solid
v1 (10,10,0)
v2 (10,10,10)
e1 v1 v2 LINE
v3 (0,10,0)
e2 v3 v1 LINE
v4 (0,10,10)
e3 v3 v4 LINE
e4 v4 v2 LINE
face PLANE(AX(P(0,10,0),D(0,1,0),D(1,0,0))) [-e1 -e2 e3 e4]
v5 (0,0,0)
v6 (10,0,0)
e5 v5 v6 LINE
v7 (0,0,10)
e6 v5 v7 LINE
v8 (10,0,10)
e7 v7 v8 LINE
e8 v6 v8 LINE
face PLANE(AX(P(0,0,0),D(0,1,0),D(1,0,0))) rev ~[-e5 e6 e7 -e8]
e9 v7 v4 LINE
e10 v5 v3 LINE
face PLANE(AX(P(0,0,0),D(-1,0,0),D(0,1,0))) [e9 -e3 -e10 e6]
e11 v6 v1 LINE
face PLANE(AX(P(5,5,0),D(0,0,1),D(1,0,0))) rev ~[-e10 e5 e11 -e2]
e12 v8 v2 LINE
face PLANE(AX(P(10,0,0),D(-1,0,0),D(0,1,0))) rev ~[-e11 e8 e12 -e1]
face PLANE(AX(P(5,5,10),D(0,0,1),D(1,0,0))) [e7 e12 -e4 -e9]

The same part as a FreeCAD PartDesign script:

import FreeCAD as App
import Part
import Sketcher
Q = App.Units.Quantity


def add_polygon(sketch, points):
    """Adds a closed chain of lines whose ends are joined by coincident constraints."""
    first, n = sketch.GeometryCount, len(points)
    for a, b in zip(points, points[1:] + points[:1]):
        sketch.addGeometry(Part.LineSegment(App.Vector(*a, 0), App.Vector(*b, 0)), False)
    for i in range(n):
        sketch.addConstraint(Sketcher.Constraint("Coincident", first + i, 2, first + (i + 1) % n, 1))

doc = App.newDocument("Part")
body = doc.addObject("PartDesign::Body", "Body")

# Sketch on XY plane
sketch1 = doc.addObject("Sketcher::SketchObject", "Sketch")
body.addObject(sketch1)
sketch1.AttachmentSupport = (doc.XY_Plane, [""])
sketch1.MapMode = "FlatFace"
add_polygon(sketch1, [(0, 10), (0, 0), (10, 0), (10, 10)])  # lines 0-3
sketch1.addConstraint([
    Sketcher.Constraint("Vertical", 0),
    Sketcher.Constraint("Horizontal", 1),
    Sketcher.Constraint("Vertical", 2),
    Sketcher.Constraint("Horizontal", 3),
    Sketcher.Constraint("Coincident", 0, 2, -1, 1),
    Sketcher.Constraint("Equal", 3, 0),
    Sketcher.Constraint("DistanceX", 1, 1, 1, 2, Q("10 mm")),
])
pad1 = doc.addObject("PartDesign::Pad", "Pad")
body.addObject(pad1)
pad1.Profile = sketch1
pad1.Length = 10

doc.recompute()
